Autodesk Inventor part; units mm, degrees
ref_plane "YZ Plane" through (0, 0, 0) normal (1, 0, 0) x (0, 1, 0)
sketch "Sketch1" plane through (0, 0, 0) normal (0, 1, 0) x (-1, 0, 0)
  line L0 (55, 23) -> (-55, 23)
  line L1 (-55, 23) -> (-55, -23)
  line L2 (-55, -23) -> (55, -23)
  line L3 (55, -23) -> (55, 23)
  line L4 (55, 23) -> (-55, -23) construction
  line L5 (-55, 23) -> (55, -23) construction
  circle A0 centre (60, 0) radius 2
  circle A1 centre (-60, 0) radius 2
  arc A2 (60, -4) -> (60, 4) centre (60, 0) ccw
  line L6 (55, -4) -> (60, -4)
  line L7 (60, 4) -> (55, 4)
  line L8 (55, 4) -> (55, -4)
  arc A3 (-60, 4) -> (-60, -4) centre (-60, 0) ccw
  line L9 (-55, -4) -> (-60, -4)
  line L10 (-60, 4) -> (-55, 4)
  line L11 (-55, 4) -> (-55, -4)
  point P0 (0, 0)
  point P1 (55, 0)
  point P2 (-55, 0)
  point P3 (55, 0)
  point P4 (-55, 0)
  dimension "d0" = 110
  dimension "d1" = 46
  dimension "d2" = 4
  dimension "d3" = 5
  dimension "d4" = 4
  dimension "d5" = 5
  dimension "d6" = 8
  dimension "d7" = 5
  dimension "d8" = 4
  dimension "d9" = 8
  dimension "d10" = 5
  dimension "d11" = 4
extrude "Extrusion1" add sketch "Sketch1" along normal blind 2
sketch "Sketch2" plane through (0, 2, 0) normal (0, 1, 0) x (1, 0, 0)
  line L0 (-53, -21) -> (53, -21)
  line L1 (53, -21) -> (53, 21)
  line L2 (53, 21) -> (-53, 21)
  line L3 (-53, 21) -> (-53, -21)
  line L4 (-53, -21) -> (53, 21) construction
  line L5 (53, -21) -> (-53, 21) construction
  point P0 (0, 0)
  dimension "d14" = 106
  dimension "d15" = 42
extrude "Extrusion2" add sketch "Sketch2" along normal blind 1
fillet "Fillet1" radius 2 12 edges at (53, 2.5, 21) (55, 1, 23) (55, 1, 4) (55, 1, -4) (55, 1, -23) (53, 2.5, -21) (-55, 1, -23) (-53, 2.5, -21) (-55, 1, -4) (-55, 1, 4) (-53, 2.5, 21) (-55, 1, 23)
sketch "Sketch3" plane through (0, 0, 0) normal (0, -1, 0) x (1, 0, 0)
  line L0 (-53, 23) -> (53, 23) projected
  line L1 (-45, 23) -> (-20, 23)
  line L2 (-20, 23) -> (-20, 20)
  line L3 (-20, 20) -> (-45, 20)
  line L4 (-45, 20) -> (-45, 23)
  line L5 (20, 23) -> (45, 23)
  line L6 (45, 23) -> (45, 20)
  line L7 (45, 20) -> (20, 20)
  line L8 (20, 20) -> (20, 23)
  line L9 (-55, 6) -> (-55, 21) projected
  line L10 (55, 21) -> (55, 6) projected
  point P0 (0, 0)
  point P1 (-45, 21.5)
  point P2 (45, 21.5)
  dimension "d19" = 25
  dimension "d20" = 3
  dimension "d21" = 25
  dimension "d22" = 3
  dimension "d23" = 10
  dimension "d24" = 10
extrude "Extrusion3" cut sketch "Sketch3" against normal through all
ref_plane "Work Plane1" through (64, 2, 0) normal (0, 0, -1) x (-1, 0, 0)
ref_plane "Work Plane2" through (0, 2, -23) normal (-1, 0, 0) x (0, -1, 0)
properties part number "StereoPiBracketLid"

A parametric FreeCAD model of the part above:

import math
import FreeCAD as App
import Part
import Sketcher

V = App.Vector
Q = App.Units.Quantity


def edges_at(feature, points):
    """Names of the edges that pass closest to the given points."""
    edges = feature.Shape.Edges
    near = lambda p: min(range(len(edges)), key=lambda i: edges[i].distToShape(Part.Vertex(*p))[0])
    return sorted({f"Edge{near(p) + 1}" for p in points})


def add_polygon(sketch, points):
    """Adds a closed chain of lines whose ends are joined by coincident constraints."""
    first, n = sketch.GeometryCount, len(points)
    for a, b in zip(points, points[1:] + points[:1]):
        sketch.addGeometry(Part.LineSegment(App.Vector(*a, 0), App.Vector(*b, 0)), False)
    for i in range(n):
        sketch.addConstraint(Sketcher.Constraint("Coincident", first + i, 2, first + (i + 1) % n, 1))

doc = App.newDocument("Part")
body = doc.addObject("PartDesign::Body", "Body")

# Sketch on XZ plane
sketch1 = doc.addObject("Sketcher::SketchObject", "Sketch")
body.addObject(sketch1)
sketch1.AttachmentSupport = (doc.XZ_Plane, [""])
sketch1.MapMode = "FlatFace"
sketch1.addGeometry([
    Part.LineSegment(V(-55, 4, 0), V(-55, 23, 0)),  # 0
    Part.LineSegment(V(-55, 23, 0), V(55, 23, 0)),  # 1
    Part.LineSegment(V(55, 23, 0), V(55, 4, 0)),  # 2
    Part.LineSegment(V(55, 4, 0), V(60, 4, 0)),  # 3
    Part.ArcOfCircle(Part.Circle(V(60, 0, 0), V(0, 0, 1), 4), math.radians(-90), math.radians(90)),  # 4
    Part.LineSegment(V(60, -4, 0), V(55, -4, 0)),  # 5
    Part.LineSegment(V(55, -4, 0), V(55, -23, 0)),  # 6
    Part.LineSegment(V(55, -23, 0), V(-55, -23, 0)),  # 7
    Part.LineSegment(V(-55, -23, 0), V(-55, -4, 0)),  # 8
    Part.LineSegment(V(-55, -4, 0), V(-60, -4, 0)),  # 9
    Part.ArcOfCircle(Part.Circle(V(-60, 0, 0), V(0, 0, 1), 4), math.radians(90), math.radians(270)),  # 10
    Part.LineSegment(V(-60, 4, 0), V(-55, 4, 0)),  # 11
    Part.Circle(V(-60, 0, 0), V(0, 0, 1), 2),  # 12
    Part.Circle(V(60, 0, 0), V(0, 0, 1), 2),  # 13
], False)
sketch1.addConstraint([
    Sketcher.Constraint("Coincident", 0, 2, 1, 1),
    Sketcher.Constraint("Coincident", 1, 2, 2, 1),
    Sketcher.Constraint("Coincident", 2, 2, 3, 1),
    Sketcher.Constraint("Tangent", 3, 2, 4, 2),
    Sketcher.Constraint("Tangent", 4, 1, 5, 1),
    Sketcher.Constraint("Coincident", 5, 2, 6, 1),
    Sketcher.Constraint("Coincident", 6, 2, 7, 1),
    Sketcher.Constraint("Coincident", 7, 2, 8, 1),
    Sketcher.Constraint("Coincident", 8, 2, 9, 1),
    Sketcher.Constraint("Tangent", 9, 2, 10, 2),
    Sketcher.Constraint("Tangent", 10, 1, 11, 1),
    Sketcher.Constraint("Coincident", 11, 2, 0, 1),
    Sketcher.Constraint("Vertical", 0),
    Sketcher.Constraint("Horizontal", 1),
    Sketcher.Constraint("Vertical", 2),
    Sketcher.Constraint("Horizontal", 3),
    Sketcher.Constraint("Horizontal", 5),
    Sketcher.Constraint("Vertical", 6),
    Sketcher.Constraint("Horizontal", 7),
    Sketcher.Constraint("Vertical", 8),
    Sketcher.Constraint("Horizontal", 9),
    Sketcher.Constraint("Horizontal", 11),
    Sketcher.Constraint("Coincident", 12, 3, 10, 3),
    Sketcher.Constraint("Coincident", 13, 3, 4, 3),
    Sketcher.Constraint("Equal", 4, 10),
    Sketcher.Constraint("Equal", 12, 13),
    Sketcher.Constraint("Symmetric", 4, 3, 10, 3, -1, 1),
    Sketcher.Constraint("Symmetric", 0, 2, 6, 2, -1, 1),
    Sketcher.Constraint("Symmetric", 5, 2, 8, 2, -2),
    Sketcher.Constraint("Vertical", 2, 2, 5, 2),
    Sketcher.Constraint("Diameter", 12, Q("4 mm")),
    Sketcher.Constraint("Radius", 4, Q("4 mm")),
    Sketcher.Constraint("DistanceX", 1, 1, 1, 2, Q("110 mm")),
    Sketcher.Constraint("DistanceX", 3, 1, 3, 2, Q("5 mm")),
    Sketcher.Constraint("DistanceY", 7, 2, 0, 2, Q("46 mm")),
])
pad1 = doc.addObject("PartDesign::Pad", "Pad")
body.addObject(pad1)
pad1.Profile = sketch1
pad1.Length = 2
pad1.Reversed = True

# Sketch on XZ plane
sketch2 = doc.addObject("Sketcher::SketchObject", "Sketch001")
body.addObject(sketch2)
sketch2.AttachmentSupport = (doc.XZ_Plane, [""])
sketch2.MapMode = "FlatFace"
sketch2.AttachmentOffset = App.Placement(V(0, 0, -2), App.Rotation())
add_polygon(sketch2, [(-53, -21), (-53, 21), (53, 21), (53, -21)])  # lines 0-3
sketch2.addConstraint([
    Sketcher.Constraint("Vertical", 0),
    Sketcher.Constraint("Horizontal", 1),
    Sketcher.Constraint("Vertical", 2),
    Sketcher.Constraint("Horizontal", 3),
    Sketcher.Constraint("Symmetric", 0, 2, 2, 2, -1, 1),
    Sketcher.Constraint("DistanceX", 1, 1, 1, 2, Q("106 mm")),
    Sketcher.Constraint("DistanceY", 0, 1, 0, 2, Q("42 mm")),
])
pad2 = doc.addObject("PartDesign::Pad", "Pad001")
body.addObject(pad2)
pad2.Profile = sketch2
pad2.Length = 1
pad2.Reversed = True
doc.recompute()

fillet = doc.addObject("PartDesign::Fillet", "Fillet")
body.addObject(fillet)
fillet.Base = (pad2, edges_at(pad2, [
    (53, 2.5, 21),
    (55, 1, 23),
    (55, 1, 4),
    (55, 1, -4),
    (55, 1, -23),
    (53, 2.5, -21),
    (-55, 1, -23),
    (-53, 2.5, -21),
    (-55, 1, -4),
    (-55, 1, 4),
    (-53, 2.5, 21),
    (-55, 1, 23),
]))
fillet.Radius = 2

# Sketch on XZ plane
sketch3 = doc.addObject("Sketcher::SketchObject", "Sketch002")
body.addObject(sketch3)
sketch3.AttachmentSupport = (doc.XZ_Plane, [""])
sketch3.MapMode = "FlatFace"
add_polygon(sketch3, [(45, 23), (20, 23), (20, 20), (45, 20)])  # lines 0-3
add_polygon(sketch3, [(-20, 23), (-45, 23), (-45, 20), (-20, 20)])  # lines 4-7
sketch3.addConstraint([
    Sketcher.Constraint("Horizontal", 0),
    Sketcher.Constraint("Vertical", 1),
    Sketcher.Constraint("Horizontal", 2),
    Sketcher.Constraint("Vertical", 3),
    Sketcher.Constraint("Horizontal", 4),
    Sketcher.Constraint("Vertical", 5),
    Sketcher.Constraint("Horizontal", 6),
    Sketcher.Constraint("Vertical", 7),
    Sketcher.Constraint("Symmetric", 3, 2, 4, 2, -2),
    Sketcher.Constraint("Symmetric", 1, 2, 6, 2, -2),
    Sketcher.Constraint("DistanceX", 0, 2, 0, 1, Q("25 mm")),
    Sketcher.Constraint("DistanceY", 1, 2, 1, 1, Q("3 mm")),
    Sketcher.Constraint("DistanceX", -1, 1, 0, 2, Q("20 mm")),
    Sketcher.Constraint("DistanceY", -1, 1, 0, 2, Q("23 mm")),
])
pocket1 = doc.addObject("PartDesign::Pocket", "Pocket")
body.addObject(pocket1)
pocket1.Profile = sketch3
pocket1.Type = "ThroughAll"

doc.recompute()
